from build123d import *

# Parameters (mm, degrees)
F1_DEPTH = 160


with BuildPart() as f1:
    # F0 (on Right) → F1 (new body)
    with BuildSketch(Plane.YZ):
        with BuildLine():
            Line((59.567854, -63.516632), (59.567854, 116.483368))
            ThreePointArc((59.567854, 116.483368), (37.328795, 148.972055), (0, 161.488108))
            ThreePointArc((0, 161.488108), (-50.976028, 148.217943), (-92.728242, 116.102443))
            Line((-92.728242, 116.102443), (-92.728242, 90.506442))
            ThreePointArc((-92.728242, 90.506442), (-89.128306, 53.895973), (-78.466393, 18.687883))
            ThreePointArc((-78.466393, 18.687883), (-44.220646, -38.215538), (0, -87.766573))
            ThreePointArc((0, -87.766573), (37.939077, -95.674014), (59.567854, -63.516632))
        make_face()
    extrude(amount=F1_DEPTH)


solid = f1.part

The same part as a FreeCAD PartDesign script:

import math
import FreeCAD as App
import Part
import Sketcher

doc = App.newDocument("Part")
body = doc.addObject("PartDesign::Body", "Body")

# Sketch on YZ plane
sketch1 = doc.addObject("Sketcher::SketchObject", "Sketch")
body.addObject(sketch1)
sketch1.AttachmentSupport = (doc.YZ_Plane, [""])
sketch1.MapMode = "FlatFace"
sketch1.addGeometry(Part.LineSegment(App.Vector(59.567854, -63.516632, 0), App.Vector(59.567854, 116.483368, 0)), False)
sketch1.addGeometry(Part.ArcOfCircle(Part.Circle(App.Vector(-0.000002, 99.564008, 0), App.Vector(0, 0, 1), 61.9241), math.radians(15.856406), math.radians(89.999999)), False)
sketch1.addGeometry(Part.ArcOfCircle(Part.Circle(App.Vector(7.159829, 29.439562, 0), App.Vector(0, 0, 1), 132.242511), math.radians(93.103606), math.radians(139.055096)), False)
sketch1.addGeometry(Part.LineSegment(App.Vector(-92.728242, 116.102443, 0), App.Vector(-92.728242, 90.506442, 0)), False)
sketch1.addGeometry(Part.ArcOfCircle(Part.Circle(App.Vector(95.231433, 90.506437, 0), App.Vector(0, 0, 1), 187.959675), math.radians(179.999998), math.radians(202.463546)), False)
sketch1.addGeometry(Part.ArcOfCircle(Part.Circle(App.Vector(242.299806, 172.975493, 0), App.Vector(0, 0, 1), 355.943284), math.radians(-154.312581), math.radians(-132.900392)), False)
sketch1.addGeometry(Part.ArcOfCircle(Part.Circle(App.Vector(24.847878, -63.516632, 0), App.Vector(0, 0, 1), 34.719976), math.radians(-135.697742), math.radians(0)), False)
sketch1.addConstraint(Sketcher.Constraint("Coincident", 0, 2, 1, 1))
sketch1.addConstraint(Sketcher.Constraint("Coincident", 1, 2, 2, 1))
sketch1.addConstraint(Sketcher.Constraint("Coincident", 2, 2, 3, 1))
sketch1.addConstraint(Sketcher.Constraint("Tangent", 3, 2, 4, 1))
sketch1.addConstraint(Sketcher.Constraint("Coincident", 4, 2, 5, 1))
sketch1.addConstraint(Sketcher.Constraint("Coincident", 5, 2, 6, 1))
sketch1.addConstraint(Sketcher.Constraint("Tangent", 6, 2, 0, 1))
sketch1.addConstraint(Sketcher.Constraint("Vertical", 0))
sketch1.addConstraint(Sketcher.Constraint("Vertical", 3))
sketch1.addConstraint(Sketcher.Constraint("PointOnObject", 1, 3, -2))
sketch1.addConstraint(Sketcher.Constraint("PointOnObject", 1, 2, -2))
sketch1.addConstraint(Sketcher.Constraint("PointOnObject", 5, 2, -2))
sketch1.addConstraint(Sketcher.Constraint("DistanceY", 0, 1, 0, 2, 180.0))
sketch1.addConstraint(Sketcher.Constraint("Radius", 1, 61.9241))
sketch1.addConstraint(Sketcher.Constraint("DistanceY", 3, 2, 3, 1, 25.596001))
sketch1.addConstraint(Sketcher.Constraint("Radius", 2, 132.242511))
sketch1.addConstraint(Sketcher.Constraint("Radius", 4, 187.959675))
sketch1.addConstraint(Sketcher.Constraint("Radius", 5, 355.943284))
sketch1.addConstraint(Sketcher.Constraint("Radius", 6, 34.719976))
sketch1.addConstraint(Sketcher.Constraint("DistanceY", -1, 1, 1, 3, 99.564008))
sketch1.addConstraint(Sketcher.Constraint("DistanceX", -1, 1, 2, 3, 7.159829))
sketch1.addConstraint(Sketcher.Constraint("DistanceX", -1, 1, 6, 3, 24.847878))
sketch1.addConstraint(Sketcher.Constraint("DistanceX", 2, 2, -1, 1, 92.728242))
sketch1.addConstraint(Sketcher.Constraint("DistanceY", 2, 3, 5, 3, 143.535931))
pad1 = doc.addObject("PartDesign::Pad", "Pad")
body.addObject(pad1)
pad1.Profile = sketch1
pad1.Length = 160

doc.recompute()
